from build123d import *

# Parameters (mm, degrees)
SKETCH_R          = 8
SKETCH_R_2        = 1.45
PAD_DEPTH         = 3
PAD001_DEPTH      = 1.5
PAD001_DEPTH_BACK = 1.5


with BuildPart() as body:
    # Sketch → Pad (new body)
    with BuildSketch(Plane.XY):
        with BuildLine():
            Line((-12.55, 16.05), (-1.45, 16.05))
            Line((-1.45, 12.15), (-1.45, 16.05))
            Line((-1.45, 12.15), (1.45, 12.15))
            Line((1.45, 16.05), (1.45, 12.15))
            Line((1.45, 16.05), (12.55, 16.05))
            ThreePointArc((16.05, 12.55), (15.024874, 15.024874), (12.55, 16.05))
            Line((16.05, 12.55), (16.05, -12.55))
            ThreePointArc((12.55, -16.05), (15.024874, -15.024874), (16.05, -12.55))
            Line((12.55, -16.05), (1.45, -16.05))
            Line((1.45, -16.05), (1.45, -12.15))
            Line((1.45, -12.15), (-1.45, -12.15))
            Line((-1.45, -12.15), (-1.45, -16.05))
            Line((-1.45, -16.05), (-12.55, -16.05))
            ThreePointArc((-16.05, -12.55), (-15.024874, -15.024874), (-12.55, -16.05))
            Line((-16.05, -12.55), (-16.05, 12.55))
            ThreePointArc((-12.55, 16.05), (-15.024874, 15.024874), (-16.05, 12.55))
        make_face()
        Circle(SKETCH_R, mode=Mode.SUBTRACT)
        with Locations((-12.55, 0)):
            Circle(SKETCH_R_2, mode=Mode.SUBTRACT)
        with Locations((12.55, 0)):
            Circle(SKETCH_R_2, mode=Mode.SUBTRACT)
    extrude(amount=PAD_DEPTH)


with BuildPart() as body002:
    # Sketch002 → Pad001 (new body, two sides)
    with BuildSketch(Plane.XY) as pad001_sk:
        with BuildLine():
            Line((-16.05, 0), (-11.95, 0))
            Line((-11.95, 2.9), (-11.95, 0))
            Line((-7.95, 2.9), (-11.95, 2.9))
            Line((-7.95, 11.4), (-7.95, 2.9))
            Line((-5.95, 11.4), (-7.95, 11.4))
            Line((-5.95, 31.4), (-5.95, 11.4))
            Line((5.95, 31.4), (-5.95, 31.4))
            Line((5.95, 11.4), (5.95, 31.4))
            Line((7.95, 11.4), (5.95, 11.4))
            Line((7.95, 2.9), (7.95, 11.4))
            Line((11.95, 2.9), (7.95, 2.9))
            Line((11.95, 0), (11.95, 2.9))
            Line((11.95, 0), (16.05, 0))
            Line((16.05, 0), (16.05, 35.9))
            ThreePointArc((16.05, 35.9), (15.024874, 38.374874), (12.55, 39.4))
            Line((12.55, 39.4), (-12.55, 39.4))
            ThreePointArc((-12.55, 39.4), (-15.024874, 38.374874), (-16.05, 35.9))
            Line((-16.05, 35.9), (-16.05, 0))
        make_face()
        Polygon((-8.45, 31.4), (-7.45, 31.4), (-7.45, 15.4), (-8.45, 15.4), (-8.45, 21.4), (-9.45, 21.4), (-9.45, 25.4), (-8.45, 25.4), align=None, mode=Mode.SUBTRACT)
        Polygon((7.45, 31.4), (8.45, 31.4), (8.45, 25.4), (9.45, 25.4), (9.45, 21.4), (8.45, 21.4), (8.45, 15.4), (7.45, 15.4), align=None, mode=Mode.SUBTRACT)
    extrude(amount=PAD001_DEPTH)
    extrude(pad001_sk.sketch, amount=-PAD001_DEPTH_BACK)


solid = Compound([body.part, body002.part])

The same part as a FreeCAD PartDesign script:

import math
import FreeCAD as App
import Part
import Sketcher
from FreeCAD import Vector


def add_polygon(sketch, points):
    """Adds a closed chain of lines whose ends are joined by coincident constraints."""
    first, n = sketch.GeometryCount, len(points)
    for a, b in zip(points, points[1:] + points[:1]):
        sketch.addGeometry(Part.LineSegment(App.Vector(*a, 0), App.Vector(*b, 0)), False)
    for i in range(n):
        sketch.addConstraint(Sketcher.Constraint("Coincident", first + i, 2, first + (i + 1) % n, 1))

doc = App.newDocument("Part")
body = doc.addObject("PartDesign::Body", "Body")

# Sketch on XY plane
sketch1 = body.newObject("Sketcher::SketchObject", "Sketch")
sketch1.AttachmentSupport = (doc.getObject("XY_Plane"), [""])
sketch1.MapMode = "FlatFace"
sketch1.addGeometry([
    Part.LineSegment(Vector(-1.4, 16.1, 0), Vector(-12.6, 16.1, 0)),  # 0
    Part.ArcOfCircle(Part.Circle(Vector(-12.6, 12.6, 0), Vector(0, 0, 1), 3.5), math.radians(90), math.radians(180)),  # 1
    Part.LineSegment(Vector(-16.1, 12.6, 0), Vector(-16.1, -12.6, 0)),  # 2
    Part.ArcOfCircle(Part.Circle(Vector(-12.6, -12.6, 0), Vector(0, 0, 1), 3.5), math.radians(180), math.radians(270)),  # 3
    Part.LineSegment(Vector(-12.6, -16.1, 0), Vector(-1.4, -16.1, 0)),  # 4
    Part.LineSegment(Vector(-1.4, -16.1, 0), Vector(-1.4, -12.2, 0)),  # 5
    Part.LineSegment(Vector(-1.4, -12.2, 0), Vector(1.4, -12.2, 0)),  # 6
    Part.LineSegment(Vector(1.4, -12.2, 0), Vector(1.4, -16.1, 0)),  # 7
    Part.LineSegment(Vector(1.4, -16.1, 0), Vector(12.6, -16.1, 0)),  # 8
    Part.ArcOfCircle(Part.Circle(Vector(12.6, -12.6, 0), Vector(0, 0, 1), 3.5), math.radians(-90), math.radians(0)),  # 9
    Part.LineSegment(Vector(16.1, -12.6, 0), Vector(16.1, 12.6, 0)),  # 10
    Part.ArcOfCircle(Part.Circle(Vector(12.6, 12.6, 0), Vector(0, 0, 1), 3.5), math.radians(0), math.radians(90)),  # 11
    Part.LineSegment(Vector(12.6, 16.1, 0), Vector(1.4, 16.1, 0)),  # 12
    Part.LineSegment(Vector(1.4, 16.1, 0), Vector(1.4, 12.2, 0)),  # 13
    Part.LineSegment(Vector(1.4, 12.2, 0), Vector(-1.4, 12.2, 0)),  # 14
    Part.LineSegment(Vector(-1.4, 12.2, 0), Vector(-1.4, 16.1, 0)),  # 15
    Part.Circle(Vector(12.6, 0, 0), Vector(0, 0, 1), 1.4),  # 16
    Part.Circle(Vector(0, 0, 0), Vector(0, 0, 1), 8),  # 17
    Part.Circle(Vector(-12.6, 0, 0), Vector(0, 0, 1), 1.4),  # 18
], False)
sketch1.addConstraint([
    Sketcher.Constraint("Tangent", 0, 2, 1, 1),
    Sketcher.Constraint("Tangent", 1, 2, 2, 1),
    Sketcher.Constraint("Tangent", 2, 2, 3, 1),
    Sketcher.Constraint("Tangent", 3, 2, 4, 1),
    Sketcher.Constraint("Coincident", 4, 2, 5, 1),
    Sketcher.Constraint("Coincident", 5, 2, 6, 1),
    Sketcher.Constraint("Coincident", 6, 2, 7, 1),
    Sketcher.Constraint("Coincident", 7, 2, 8, 1),
    Sketcher.Constraint("Tangent", 8, 2, 9, 1),
    Sketcher.Constraint("Tangent", 9, 2, 10, 1),
    Sketcher.Constraint("Tangent", 10, 2, 11, 1),
    Sketcher.Constraint("Tangent", 11, 2, 12, 1),
    Sketcher.Constraint("Coincident", 12, 2, 13, 1),
    Sketcher.Constraint("Coincident", 13, 2, 14, 1),
    Sketcher.Constraint("Coincident", 14, 2, 15, 1),
    Sketcher.Constraint("Coincident", 15, 2, 0, 1),
    Sketcher.Constraint("Horizontal", 0),
    Sketcher.Constraint("Vertical", 2),
    Sketcher.Constraint("Horizontal", 4),
    Sketcher.Constraint("Vertical", 5),
    Sketcher.Constraint("Horizontal", 6),
    Sketcher.Constraint("Vertical", 7),
    Sketcher.Constraint("Horizontal", 8),
    Sketcher.Constraint("Vertical", 10),
    Sketcher.Constraint("Horizontal", 12),
    Sketcher.Constraint("Vertical", 13),
    Sketcher.Constraint("Horizontal", 14),
    Sketcher.Constraint("Vertical", 15),
    Sketcher.Constraint("Coincident", 17, 3, -1, 1),
    Sketcher.Constraint("Equal", 1, 3),
    Sketcher.Constraint("Equal", 3, 9),
    Sketcher.Constraint("Equal", 9, 11),
    Sketcher.Constraint("Equal", 16, 18),
    Sketcher.Constraint("Symmetric", 1, 3, 9, 3, -1, 1),
    Sketcher.Constraint("Symmetric", 16, 3, 18, 3, -1, 1),
    Sketcher.Constraint("Symmetric", 4, 2, 12, 2, -1, 1),
    Sketcher.Constraint("Symmetric", 6, 2, 14, 2, -1, 1),
    Sketcher.Constraint("Symmetric", 4, 2, 7, 2, -2),
    Sketcher.Constraint("PointOnObject", 16, 3, -1),
    Sketcher.Constraint("Vertical", 11, 3, 16, 3),
    Sketcher.Constraint("Diameter", 17, 16.0),
    Sketcher.Constraint("Diameter", 16, 2.9),
    Sketcher.Constraint("Radius", 1, 3.499999),
    Sketcher.Constraint("DistanceX", 0, 2, 0, 1, 11.1),
    Sketcher.Constraint("DistanceX", 6, 1, 6, 2, 2.9),
    Sketcher.Constraint("DistanceY", 2, 2, 2, 1, 25.1),
    Sketcher.Constraint("DistanceY", 5, 1, 5, 2, 3.9),
])
pad1 = body.newObject("PartDesign::Pad", "Pad")
pad1.Profile = sketch1
pad1.Length = 3
body2 = doc.addObject("PartDesign::Body", "Body001")

# Sketch on XY plane
sketch2 = body2.newObject("Sketcher::SketchObject", "Sketch001")
sketch2.AttachmentSupport = (doc.getObject("XY_Plane001"), [""])
sketch2.MapMode = "FlatFace"
sketch2.addGeometry(Part.LineSegment(Vector(-16.1, 0, 0), Vector(-11.9, 0, 0)), False)  # 0
sketch2.addGeometry(Part.LineSegment(Vector(-11.9, 0, 0), Vector(-11.9, 2.9, 0)), False)  # 1
sketch2.addGeometry(Part.LineSegment(Vector(-11.9, 2.9, 0), Vector(-8, 2.9, 0)), False)  # 2
sketch2.addGeometry(Part.LineSegment(Vector(-8, 2.9, 0), Vector(-8, 11.4, 0)), False)  # 3
sketch2.addGeometry(Part.LineSegment(Vector(-8, 11.4, 0), Vector(-6, 11.4, 0)), False)  # 4
sketch2.addGeometry(Part.LineSegment(Vector(-6, 11.4, 0), Vector(-6, 31.4, 0)), False)  # 5
sketch2.addGeometry(Part.LineSegment(Vector(-6, 31.4, 0), Vector(6, 31.4, 0)), False)  # 6
sketch2.addGeometry(Part.LineSegment(Vector(6, 31.4, 0), Vector(6, 11.4, 0)), False)  # 7
sketch2.addGeometry(Part.LineSegment(Vector(6, 11.4, 0), Vector(8, 11.4, 0)), False)  # 8
sketch2.addGeometry(Part.LineSegment(Vector(8, 11.4, 0), Vector(8, 2.9, 0)), False)  # 9
sketch2.addGeometry(Part.LineSegment(Vector(8, 2.9, 0), Vector(11.9, 2.9, 0)), False)  # 10
sketch2.addGeometry(Part.LineSegment(Vector(11.9, 2.9, 0), Vector(11.9, 0, 0)), False)  # 11
sketch2.addGeometry(Part.LineSegment(Vector(11.9, 0, 0), Vector(16.1, 0, 0)), False)  # 12
sketch2.addGeometry(Part.LineSegment(Vector(16.1, 0, 0), Vector(16.1, 35.9, 0)), False)  # 13
sketch2.addGeometry(Part.ArcOfCircle(Part.Circle(Vector(12.6, 35.9, 0), Vector(0, 0, 1), 3.5), math.radians(0), math.radians(90)), False)  # 14
sketch2.addGeometry(Part.LineSegment(Vector(12.6, 39.4, 0), Vector(-12.6, 39.4, 0)), False)  # 15
sketch2.addGeometry(Part.ArcOfCircle(Part.Circle(Vector(-12.6, 35.9, 0), Vector(0, 0, 1), 3.5), math.radians(90), math.radians(180)), False)  # 16
sketch2.addGeometry(Part.LineSegment(Vector(-16.1, 35.9, 0), Vector(-16.1, 0, 0)), False)  # 17
add_polygon(sketch2, [(-8.4, 25.4), (-8.4, 31.4), (-7.5, 31.4), (-7.5, 15.4), (-8.4, 15.4), (-8.4, 21.4), (-9.4, 21.4), (-9.4, 25.4)])  # lines 18-25
add_polygon(sketch2, [(7.5, 15.4), (7.5, 31.4), (8.4, 31.4), (8.4, 25.4), (9.4, 25.4), (9.4, 21.4), (8.4, 21.4), (8.4, 15.4)])  # lines 26-33
sketch2.addConstraint([
    Sketcher.Constraint("Coincident", 0, 2, 1, 1),
    Sketcher.Constraint("Coincident", 1, 2, 2, 1),
    Sketcher.Constraint("Coincident", 2, 2, 3, 1),
    Sketcher.Constraint("Coincident", 3, 2, 4, 1),
    Sketcher.Constraint("Coincident", 4, 2, 5, 1),
    Sketcher.Constraint("Coincident", 5, 2, 6, 1),
    Sketcher.Constraint("Coincident", 6, 2, 7, 1),
    Sketcher.Constraint("Coincident", 7, 2, 8, 1),
    Sketcher.Constraint("Coincident", 8, 2, 9, 1),
    Sketcher.Constraint("Coincident", 9, 2, 10, 1),
    Sketcher.Constraint("Coincident", 10, 2, 11, 1),
    Sketcher.Constraint("Coincident", 11, 2, 12, 1),
    Sketcher.Constraint("Coincident", 12, 2, 13, 1),
    Sketcher.Constraint("Tangent", 13, 2, 14, 1),
    Sketcher.Constraint("Tangent", 14, 2, 15, 1),
    Sketcher.Constraint("Tangent", 15, 2, 16, 1),
    Sketcher.Constraint("Tangent", 16, 2, 17, 1),
    Sketcher.Constraint("Coincident", 17, 2, 0, 1),
    Sketcher.Constraint("Horizontal", 0),
    Sketcher.Constraint("Vertical", 1),
    Sketcher.Constraint("Horizontal", 2),
    Sketcher.Constraint("Vertical", 3),
    Sketcher.Constraint("Horizontal", 4),
    Sketcher.Constraint("Vertical", 5),
    Sketcher.Constraint("Horizontal", 6),
    Sketcher.Constraint("Vertical", 7),
    Sketcher.Constraint("Horizontal", 8),
    Sketcher.Constraint("Vertical", 9),
    Sketcher.Constraint("Horizontal", 10),
    Sketcher.Constraint("Vertical", 11),
    Sketcher.Constraint("Horizontal", 12),
    Sketcher.Constraint("Vertical", 13),
    Sketcher.Constraint("Horizontal", 15),
    Sketcher.Constraint("Vertical", 17),
    Sketcher.Constraint("Vertical", 18),
    Sketcher.Constraint("Horizontal", 19),
    Sketcher.Constraint("Vertical", 20),
    Sketcher.Constraint("Horizontal", 21),
    Sketcher.Constraint("Vertical", 22),
    Sketcher.Constraint("Horizontal", 23),
    Sketcher.Constraint("Vertical", 24),
    Sketcher.Constraint("Horizontal", 25),
    Sketcher.Constraint("Vertical", 26),
    Sketcher.Constraint("Horizontal", 27),
    Sketcher.Constraint("Vertical", 28),
    Sketcher.Constraint("Horizontal", 29),
    Sketcher.Constraint("Vertical", 30),
    Sketcher.Constraint("Horizontal", 31),
    Sketcher.Constraint("Vertical", 32),
    Sketcher.Constraint("Horizontal", 33),
    Sketcher.Constraint("Equal", 14, 16),
    Sketcher.Constraint("Symmetric", 0, 2, 11, 2, -1, 1),
    Sketcher.Constraint("Symmetric", 4, 2, 7, 2, -2),
    Sketcher.Constraint("Symmetric", 2, 2, 9, 2, -2),
    Sketcher.Constraint("Symmetric", 12, 2, 17, 2, -2),
    Sketcher.Constraint("Symmetric", 19, 2, 26, 2, -2),
    Sketcher.Constraint("Symmetric", 25, 2, 28, 2, -2),
    Sketcher.Constraint("Symmetric", 23, 2, 30, 2, -2),
    Sketcher.Constraint("Symmetric", 21, 2, 32, 2, -2),
    Sketcher.Constraint("Horizontal", 6, 2, 18, 2),
    Sketcher.Constraint("Vertical", 18, 2, 21, 2),
    Sketcher.Constraint("Equal", 21, 23),
    Sketcher.Constraint("Equal", 18, 22),
    Sketcher.Constraint("Equal", 10, 24),
    Sketcher.Constraint("Radius", 14, 3.499999),
    Sketcher.Constraint("DistanceX", 2, 1, 2, 2, 4.0),
    Sketcher.Constraint("DistanceX", 4, 1, 4, 2, 2.0),
    Sketcher.Constraint("DistanceX", 19, 1, 19, 2, 1.0),
    Sketcher.Constraint("DistanceY", 5, 1, 5, 2, 20.0),
    Sketcher.Constraint("DistanceY", 18, 1, 18, 2, 6.0),
    Sketcher.Constraint("DistanceX", 0, 1, 0, 2, 4.1),
    Sketcher.Constraint("DistanceX", 6, 1, 6, 2, 11.9),
    Sketcher.Constraint("DistanceY", 1, 1, 1, 2, 2.9),
    Sketcher.Constraint("DistanceY", 3, 1, 3, 2, 8.5),
    Sketcher.Constraint("DistanceY", 13, 1, 13, 2, 35.9),
    Sketcher.Constraint("DistanceX", 18, 2, 5, 2, 2.5),
])
pad2 = body2.newObject("PartDesign::Pad", "Pad001")
pad2.Profile = sketch2
pad2.Type = "TwoLengths"
pad2.Length = 1.5
pad2.Length2 = 1.5

doc.recompute()
